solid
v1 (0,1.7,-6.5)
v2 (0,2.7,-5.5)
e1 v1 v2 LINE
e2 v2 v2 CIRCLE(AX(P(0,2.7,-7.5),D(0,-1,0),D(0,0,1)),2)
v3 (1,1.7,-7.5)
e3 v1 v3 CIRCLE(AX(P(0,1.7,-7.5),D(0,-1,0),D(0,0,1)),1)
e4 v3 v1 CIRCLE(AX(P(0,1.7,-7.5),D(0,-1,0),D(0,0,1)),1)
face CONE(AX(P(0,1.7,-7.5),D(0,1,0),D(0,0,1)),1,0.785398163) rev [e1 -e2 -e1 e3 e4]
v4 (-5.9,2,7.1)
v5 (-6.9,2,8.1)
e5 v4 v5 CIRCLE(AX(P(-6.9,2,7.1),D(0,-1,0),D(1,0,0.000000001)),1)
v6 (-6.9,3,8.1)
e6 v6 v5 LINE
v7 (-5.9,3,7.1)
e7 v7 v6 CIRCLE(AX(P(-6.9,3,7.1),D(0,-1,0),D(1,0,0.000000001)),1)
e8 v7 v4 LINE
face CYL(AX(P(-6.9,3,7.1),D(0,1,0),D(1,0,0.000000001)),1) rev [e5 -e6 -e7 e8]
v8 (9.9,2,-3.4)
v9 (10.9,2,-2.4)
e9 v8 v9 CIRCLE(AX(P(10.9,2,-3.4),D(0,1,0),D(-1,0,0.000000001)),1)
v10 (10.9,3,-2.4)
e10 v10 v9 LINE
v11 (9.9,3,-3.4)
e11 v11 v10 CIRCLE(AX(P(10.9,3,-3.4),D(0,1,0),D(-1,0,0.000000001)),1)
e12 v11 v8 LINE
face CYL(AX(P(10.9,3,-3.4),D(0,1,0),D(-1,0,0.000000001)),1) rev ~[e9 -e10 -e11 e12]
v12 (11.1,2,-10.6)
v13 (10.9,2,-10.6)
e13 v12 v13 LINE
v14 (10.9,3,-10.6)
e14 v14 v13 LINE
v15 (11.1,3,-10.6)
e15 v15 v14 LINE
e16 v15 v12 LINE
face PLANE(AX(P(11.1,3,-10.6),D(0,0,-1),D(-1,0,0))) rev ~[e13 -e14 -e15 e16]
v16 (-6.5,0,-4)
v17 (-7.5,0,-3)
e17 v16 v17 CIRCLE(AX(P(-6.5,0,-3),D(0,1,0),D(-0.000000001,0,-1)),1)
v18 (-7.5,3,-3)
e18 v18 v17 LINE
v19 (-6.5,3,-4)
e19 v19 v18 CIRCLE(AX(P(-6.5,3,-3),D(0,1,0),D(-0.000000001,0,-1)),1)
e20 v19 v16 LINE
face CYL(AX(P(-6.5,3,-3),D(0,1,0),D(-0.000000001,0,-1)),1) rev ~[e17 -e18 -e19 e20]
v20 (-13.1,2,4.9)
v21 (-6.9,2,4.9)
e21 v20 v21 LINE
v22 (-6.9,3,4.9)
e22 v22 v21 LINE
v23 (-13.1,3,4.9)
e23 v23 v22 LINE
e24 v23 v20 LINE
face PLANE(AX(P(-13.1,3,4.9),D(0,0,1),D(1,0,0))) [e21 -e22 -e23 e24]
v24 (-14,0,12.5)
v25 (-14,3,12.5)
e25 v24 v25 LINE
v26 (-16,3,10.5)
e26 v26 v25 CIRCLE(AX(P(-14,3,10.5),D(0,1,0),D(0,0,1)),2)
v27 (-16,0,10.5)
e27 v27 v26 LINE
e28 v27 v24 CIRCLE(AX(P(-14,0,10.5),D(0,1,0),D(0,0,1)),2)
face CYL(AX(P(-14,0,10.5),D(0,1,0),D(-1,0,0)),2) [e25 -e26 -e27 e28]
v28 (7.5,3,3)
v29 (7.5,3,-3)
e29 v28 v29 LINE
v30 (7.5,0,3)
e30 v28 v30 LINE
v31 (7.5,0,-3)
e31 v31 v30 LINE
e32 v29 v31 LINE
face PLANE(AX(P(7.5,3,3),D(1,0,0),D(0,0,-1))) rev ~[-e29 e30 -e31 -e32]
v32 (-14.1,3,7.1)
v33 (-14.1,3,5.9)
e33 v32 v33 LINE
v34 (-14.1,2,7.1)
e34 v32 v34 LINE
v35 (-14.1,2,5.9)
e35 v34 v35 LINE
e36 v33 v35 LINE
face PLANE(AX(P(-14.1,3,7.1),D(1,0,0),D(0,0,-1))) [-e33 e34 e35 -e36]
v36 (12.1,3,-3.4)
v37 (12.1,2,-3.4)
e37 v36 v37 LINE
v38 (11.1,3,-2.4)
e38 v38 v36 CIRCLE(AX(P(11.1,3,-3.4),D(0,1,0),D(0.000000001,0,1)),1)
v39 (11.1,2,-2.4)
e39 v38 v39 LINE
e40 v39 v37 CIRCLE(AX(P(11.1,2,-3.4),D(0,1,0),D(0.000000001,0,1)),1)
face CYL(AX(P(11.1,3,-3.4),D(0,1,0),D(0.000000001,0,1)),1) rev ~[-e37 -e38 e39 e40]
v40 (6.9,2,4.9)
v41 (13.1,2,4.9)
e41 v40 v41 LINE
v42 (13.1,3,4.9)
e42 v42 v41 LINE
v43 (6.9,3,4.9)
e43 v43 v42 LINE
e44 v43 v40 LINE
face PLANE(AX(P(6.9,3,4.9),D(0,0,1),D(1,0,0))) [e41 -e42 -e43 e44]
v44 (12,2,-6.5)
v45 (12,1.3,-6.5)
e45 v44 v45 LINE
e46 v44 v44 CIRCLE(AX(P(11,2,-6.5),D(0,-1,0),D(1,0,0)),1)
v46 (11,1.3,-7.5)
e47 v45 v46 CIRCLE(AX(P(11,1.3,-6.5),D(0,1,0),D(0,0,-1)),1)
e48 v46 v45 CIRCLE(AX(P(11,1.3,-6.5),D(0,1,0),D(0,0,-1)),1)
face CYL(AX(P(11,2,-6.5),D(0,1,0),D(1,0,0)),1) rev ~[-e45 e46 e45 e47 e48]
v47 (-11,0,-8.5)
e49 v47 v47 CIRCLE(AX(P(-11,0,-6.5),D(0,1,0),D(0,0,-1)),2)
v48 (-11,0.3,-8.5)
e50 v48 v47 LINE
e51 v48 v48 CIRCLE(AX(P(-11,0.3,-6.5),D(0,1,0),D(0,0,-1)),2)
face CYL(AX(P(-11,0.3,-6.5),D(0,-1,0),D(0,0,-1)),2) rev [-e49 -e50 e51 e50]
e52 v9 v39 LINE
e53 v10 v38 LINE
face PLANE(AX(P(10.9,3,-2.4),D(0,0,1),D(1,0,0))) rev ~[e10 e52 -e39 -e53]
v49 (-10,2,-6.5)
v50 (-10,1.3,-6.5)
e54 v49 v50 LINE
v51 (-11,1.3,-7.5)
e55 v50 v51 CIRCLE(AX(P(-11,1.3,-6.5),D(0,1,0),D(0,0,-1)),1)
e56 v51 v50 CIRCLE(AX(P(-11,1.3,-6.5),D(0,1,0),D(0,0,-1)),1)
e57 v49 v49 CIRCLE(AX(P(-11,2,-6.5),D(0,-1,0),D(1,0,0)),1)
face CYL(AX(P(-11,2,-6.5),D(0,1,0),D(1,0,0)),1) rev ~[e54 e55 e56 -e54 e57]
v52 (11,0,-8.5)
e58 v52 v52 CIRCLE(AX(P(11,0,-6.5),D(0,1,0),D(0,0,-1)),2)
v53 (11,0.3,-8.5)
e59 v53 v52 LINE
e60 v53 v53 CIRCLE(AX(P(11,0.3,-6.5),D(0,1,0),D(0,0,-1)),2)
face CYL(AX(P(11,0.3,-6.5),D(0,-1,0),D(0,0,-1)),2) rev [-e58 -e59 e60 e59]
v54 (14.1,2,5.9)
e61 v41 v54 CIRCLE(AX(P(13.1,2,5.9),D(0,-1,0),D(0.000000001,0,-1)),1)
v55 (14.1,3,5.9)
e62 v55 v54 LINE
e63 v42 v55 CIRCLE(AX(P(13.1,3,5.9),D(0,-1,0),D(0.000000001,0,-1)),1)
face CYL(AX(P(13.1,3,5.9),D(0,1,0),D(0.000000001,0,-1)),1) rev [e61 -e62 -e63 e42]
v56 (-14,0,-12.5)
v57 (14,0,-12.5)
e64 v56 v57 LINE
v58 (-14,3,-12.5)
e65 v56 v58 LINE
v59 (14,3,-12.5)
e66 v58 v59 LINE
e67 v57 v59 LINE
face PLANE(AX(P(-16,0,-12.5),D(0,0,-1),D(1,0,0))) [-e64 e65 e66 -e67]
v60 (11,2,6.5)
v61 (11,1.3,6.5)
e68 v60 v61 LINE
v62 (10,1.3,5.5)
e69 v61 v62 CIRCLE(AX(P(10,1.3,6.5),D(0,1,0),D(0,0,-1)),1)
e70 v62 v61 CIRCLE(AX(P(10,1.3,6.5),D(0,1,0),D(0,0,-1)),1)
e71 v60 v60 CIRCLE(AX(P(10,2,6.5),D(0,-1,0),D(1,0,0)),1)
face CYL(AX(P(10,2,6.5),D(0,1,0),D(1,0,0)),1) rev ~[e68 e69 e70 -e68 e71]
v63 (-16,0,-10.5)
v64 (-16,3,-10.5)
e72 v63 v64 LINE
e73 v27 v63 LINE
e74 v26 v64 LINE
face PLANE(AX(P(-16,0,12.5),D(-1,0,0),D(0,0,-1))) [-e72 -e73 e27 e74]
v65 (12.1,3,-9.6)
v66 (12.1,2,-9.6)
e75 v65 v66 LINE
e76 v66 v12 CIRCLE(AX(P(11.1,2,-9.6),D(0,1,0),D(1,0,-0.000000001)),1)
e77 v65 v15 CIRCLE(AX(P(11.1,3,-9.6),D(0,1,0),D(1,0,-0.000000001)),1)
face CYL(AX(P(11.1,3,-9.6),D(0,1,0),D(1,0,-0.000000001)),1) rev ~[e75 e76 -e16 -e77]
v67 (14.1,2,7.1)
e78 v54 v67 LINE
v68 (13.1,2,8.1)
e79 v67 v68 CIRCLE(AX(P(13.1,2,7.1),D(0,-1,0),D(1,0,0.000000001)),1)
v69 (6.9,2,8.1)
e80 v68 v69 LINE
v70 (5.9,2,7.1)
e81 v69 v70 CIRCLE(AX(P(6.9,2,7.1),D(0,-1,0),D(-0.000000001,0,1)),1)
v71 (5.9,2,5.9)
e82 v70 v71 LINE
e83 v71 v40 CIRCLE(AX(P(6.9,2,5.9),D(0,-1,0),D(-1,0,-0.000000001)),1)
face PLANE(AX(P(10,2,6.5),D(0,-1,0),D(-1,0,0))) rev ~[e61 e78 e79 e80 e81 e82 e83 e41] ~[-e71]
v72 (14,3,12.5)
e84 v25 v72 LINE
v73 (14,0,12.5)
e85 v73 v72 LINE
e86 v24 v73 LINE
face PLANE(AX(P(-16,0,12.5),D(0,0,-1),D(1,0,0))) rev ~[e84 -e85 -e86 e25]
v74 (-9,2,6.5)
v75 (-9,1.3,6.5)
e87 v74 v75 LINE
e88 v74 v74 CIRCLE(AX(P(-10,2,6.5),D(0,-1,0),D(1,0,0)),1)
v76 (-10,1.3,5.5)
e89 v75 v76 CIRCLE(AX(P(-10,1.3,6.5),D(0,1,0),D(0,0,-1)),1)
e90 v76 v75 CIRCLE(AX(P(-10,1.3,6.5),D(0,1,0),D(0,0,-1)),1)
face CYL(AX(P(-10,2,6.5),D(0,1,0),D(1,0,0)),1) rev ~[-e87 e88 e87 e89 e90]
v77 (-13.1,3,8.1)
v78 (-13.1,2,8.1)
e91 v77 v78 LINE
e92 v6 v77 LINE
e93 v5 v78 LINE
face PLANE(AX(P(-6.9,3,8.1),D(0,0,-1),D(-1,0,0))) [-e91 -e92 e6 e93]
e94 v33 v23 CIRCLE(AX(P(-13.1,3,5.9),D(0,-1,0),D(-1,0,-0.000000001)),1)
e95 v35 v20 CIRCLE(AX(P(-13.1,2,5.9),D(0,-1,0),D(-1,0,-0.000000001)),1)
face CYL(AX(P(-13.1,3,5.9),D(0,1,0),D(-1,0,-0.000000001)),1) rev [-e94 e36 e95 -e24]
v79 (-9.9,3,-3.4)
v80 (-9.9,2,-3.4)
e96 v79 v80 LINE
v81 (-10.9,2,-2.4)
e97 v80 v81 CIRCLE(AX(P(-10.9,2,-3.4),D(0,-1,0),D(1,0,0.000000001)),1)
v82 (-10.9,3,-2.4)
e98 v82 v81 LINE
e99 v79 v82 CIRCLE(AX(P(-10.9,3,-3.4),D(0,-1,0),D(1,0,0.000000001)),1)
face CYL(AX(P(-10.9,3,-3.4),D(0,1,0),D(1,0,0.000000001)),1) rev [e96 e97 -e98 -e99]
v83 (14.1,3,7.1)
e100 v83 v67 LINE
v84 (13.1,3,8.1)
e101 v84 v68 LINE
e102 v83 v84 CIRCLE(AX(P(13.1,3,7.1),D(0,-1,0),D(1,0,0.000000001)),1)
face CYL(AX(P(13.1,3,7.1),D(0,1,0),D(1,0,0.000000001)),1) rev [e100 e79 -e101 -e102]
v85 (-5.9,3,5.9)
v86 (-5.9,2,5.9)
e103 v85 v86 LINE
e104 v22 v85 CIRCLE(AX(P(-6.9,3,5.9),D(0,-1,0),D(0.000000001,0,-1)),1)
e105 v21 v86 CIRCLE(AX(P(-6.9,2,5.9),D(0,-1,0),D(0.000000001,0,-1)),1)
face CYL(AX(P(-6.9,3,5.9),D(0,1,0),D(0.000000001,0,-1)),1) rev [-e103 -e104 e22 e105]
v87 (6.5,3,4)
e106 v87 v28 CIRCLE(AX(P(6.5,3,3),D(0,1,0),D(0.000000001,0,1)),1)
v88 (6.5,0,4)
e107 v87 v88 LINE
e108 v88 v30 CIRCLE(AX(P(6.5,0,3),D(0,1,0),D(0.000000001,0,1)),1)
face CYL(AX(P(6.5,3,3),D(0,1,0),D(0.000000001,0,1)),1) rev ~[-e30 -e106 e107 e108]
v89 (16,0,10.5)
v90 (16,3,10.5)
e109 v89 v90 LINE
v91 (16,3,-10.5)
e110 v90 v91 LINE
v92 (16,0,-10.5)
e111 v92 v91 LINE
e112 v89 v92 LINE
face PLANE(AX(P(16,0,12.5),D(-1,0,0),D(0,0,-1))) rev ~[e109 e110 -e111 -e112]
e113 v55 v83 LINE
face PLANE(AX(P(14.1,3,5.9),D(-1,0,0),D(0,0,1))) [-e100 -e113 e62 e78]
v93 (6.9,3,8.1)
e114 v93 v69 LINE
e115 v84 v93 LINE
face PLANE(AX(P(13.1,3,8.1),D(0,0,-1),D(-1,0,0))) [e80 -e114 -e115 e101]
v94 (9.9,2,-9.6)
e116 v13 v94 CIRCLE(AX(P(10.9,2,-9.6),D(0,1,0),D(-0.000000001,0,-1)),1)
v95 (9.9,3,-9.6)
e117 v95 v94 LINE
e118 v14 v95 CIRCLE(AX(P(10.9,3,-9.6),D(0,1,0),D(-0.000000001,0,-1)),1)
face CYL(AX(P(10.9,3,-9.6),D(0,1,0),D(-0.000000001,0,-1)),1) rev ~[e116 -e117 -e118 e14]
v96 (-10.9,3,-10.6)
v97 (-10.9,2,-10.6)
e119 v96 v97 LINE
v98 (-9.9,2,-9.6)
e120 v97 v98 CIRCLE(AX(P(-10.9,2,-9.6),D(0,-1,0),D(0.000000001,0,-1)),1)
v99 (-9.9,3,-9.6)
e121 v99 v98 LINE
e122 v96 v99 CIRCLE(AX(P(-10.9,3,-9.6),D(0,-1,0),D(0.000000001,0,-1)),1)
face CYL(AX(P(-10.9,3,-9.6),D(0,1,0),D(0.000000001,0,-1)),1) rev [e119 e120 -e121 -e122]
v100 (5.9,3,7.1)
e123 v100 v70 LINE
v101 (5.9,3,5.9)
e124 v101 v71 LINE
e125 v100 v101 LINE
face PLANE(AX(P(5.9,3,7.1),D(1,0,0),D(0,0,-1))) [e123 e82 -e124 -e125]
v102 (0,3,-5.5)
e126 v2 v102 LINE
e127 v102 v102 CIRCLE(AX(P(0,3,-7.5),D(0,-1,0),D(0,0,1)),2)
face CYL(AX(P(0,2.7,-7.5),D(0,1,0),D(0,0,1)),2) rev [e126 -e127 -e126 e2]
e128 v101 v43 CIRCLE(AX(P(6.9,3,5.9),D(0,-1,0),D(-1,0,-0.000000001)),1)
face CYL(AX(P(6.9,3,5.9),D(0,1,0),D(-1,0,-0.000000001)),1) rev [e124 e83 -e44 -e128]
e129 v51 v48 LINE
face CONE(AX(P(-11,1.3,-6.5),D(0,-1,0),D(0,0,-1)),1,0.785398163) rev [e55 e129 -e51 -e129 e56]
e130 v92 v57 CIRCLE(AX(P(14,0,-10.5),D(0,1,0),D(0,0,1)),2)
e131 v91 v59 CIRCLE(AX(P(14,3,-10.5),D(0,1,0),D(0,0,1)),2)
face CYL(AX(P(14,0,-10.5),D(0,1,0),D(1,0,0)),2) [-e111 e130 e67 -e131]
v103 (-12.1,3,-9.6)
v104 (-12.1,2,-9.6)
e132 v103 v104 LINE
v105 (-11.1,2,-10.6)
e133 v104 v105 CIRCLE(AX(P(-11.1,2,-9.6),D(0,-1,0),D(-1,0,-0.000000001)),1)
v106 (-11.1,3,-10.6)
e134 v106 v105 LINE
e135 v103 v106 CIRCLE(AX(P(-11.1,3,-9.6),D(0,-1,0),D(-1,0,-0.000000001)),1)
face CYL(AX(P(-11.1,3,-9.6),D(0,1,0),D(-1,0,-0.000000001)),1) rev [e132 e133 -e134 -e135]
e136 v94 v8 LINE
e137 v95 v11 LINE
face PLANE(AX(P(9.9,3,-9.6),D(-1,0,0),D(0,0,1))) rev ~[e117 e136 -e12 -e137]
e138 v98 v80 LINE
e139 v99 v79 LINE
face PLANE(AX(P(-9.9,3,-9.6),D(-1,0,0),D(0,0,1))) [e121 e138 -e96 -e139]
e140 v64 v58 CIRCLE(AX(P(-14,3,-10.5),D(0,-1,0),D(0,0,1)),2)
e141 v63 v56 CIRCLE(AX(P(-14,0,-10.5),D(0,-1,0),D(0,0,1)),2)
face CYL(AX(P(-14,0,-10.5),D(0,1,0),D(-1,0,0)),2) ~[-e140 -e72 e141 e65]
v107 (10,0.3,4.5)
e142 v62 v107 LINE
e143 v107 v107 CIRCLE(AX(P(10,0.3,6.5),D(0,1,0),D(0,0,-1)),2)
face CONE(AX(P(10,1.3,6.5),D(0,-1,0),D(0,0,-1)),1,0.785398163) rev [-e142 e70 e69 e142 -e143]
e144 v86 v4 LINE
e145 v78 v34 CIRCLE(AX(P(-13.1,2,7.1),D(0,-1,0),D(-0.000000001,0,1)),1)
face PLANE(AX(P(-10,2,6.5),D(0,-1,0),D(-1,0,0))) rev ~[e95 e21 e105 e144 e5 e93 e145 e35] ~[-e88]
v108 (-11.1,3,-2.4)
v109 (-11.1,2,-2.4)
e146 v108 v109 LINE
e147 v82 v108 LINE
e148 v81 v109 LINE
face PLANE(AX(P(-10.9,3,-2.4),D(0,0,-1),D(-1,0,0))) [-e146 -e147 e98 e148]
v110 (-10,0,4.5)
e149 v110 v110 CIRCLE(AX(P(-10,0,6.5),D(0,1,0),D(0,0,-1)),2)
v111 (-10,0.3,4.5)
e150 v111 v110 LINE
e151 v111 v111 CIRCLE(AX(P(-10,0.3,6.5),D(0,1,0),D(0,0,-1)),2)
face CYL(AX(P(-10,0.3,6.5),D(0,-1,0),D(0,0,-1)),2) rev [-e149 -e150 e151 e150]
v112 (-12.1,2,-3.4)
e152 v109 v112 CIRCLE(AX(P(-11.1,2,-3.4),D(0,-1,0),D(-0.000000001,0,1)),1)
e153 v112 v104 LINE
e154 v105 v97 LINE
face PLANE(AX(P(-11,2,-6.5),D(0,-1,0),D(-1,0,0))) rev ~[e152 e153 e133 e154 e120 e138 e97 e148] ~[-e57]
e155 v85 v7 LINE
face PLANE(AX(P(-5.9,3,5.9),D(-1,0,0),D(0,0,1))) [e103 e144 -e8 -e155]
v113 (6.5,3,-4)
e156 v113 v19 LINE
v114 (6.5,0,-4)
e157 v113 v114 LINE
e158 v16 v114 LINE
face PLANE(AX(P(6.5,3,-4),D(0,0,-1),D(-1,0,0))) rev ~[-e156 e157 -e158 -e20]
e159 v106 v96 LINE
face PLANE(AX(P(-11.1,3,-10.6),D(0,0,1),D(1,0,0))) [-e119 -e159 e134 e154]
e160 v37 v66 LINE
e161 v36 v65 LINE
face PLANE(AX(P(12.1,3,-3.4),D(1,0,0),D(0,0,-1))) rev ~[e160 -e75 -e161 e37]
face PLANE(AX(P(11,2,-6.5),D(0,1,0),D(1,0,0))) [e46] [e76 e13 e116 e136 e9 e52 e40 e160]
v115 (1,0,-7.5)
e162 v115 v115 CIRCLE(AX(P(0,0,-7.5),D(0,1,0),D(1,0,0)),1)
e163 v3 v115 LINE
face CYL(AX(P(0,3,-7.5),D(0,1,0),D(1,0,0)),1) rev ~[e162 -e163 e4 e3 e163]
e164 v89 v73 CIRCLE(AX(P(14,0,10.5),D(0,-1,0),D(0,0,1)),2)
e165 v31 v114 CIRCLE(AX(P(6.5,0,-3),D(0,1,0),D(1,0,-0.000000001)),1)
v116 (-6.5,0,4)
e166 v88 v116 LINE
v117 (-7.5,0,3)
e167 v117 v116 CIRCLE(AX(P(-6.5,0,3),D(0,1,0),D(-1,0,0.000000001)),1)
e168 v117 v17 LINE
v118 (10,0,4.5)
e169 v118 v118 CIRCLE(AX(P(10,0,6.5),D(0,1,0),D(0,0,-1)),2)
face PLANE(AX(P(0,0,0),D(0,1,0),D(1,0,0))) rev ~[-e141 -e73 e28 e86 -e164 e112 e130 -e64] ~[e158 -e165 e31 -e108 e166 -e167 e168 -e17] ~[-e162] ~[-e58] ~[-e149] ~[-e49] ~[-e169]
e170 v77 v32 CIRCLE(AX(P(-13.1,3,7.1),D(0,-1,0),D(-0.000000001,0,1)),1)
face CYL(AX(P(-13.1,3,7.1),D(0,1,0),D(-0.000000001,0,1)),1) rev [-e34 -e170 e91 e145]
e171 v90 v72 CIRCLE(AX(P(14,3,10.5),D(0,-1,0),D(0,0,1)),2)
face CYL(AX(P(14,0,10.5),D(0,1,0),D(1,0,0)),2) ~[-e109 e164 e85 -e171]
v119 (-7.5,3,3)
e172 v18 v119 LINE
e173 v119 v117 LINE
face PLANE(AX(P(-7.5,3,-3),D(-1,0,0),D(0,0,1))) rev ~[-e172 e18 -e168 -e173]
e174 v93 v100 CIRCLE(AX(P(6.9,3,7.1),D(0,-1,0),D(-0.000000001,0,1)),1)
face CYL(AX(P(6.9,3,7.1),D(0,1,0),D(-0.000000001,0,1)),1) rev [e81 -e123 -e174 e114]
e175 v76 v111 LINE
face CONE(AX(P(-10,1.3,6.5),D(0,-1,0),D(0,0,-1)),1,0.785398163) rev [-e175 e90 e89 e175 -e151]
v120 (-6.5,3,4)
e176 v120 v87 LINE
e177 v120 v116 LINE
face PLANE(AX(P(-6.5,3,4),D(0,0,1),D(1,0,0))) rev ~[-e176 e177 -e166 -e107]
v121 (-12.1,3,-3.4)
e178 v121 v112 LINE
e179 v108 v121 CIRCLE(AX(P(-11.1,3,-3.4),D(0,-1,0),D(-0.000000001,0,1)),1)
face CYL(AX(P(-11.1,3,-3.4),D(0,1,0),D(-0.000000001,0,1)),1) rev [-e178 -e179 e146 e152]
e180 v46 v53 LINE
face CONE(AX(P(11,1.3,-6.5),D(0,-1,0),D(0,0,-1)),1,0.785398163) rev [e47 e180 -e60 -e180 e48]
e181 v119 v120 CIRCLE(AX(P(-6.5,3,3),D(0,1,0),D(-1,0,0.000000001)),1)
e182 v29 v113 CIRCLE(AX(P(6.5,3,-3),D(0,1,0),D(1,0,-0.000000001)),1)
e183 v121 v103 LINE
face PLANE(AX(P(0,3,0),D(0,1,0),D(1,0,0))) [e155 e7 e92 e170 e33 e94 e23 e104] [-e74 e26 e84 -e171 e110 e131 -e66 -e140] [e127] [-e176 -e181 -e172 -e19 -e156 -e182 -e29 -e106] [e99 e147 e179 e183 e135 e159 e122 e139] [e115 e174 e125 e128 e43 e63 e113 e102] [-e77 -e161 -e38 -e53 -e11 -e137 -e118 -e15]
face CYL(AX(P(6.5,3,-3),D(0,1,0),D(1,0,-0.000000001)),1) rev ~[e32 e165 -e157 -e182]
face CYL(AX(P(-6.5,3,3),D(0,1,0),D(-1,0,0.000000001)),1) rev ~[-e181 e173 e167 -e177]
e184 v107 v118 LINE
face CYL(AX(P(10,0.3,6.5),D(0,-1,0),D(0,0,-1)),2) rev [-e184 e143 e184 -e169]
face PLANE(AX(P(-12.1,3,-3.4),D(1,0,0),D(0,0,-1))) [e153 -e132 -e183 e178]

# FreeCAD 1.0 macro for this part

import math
import FreeCAD as App
import Part
import Sketcher

V = App.Vector
Q = App.Units.Quantity


def edges_at(feature, points):
    """Names of the edges that pass closest to the given points."""
    edges = feature.Shape.Edges
    near = lambda p: min(range(len(edges)), key=lambda i: edges[i].distToShape(Part.Vertex(*p))[0])
    return sorted({f"Edge{near(p) + 1}" for p in points})

doc = App.newDocument("Part")
body = doc.addObject("PartDesign::Body", "Body")

# Sketch on XZ plane
sketch1 = doc.addObject("Sketcher::SketchObject", "Sketch")
body.addObject(sketch1)
sketch1.AttachmentSupport = (doc.XZ_Plane, [""])
sketch1.MapMode = "FlatFace"
sketch1.addGeometry([
    Part.LineSegment(V(-16, -12, 0), V(-16, 12, 0)),
    Part.LineSegment(V(-16, 12, 0), V(16, 12, 0)),
    Part.LineSegment(V(16, 12, 0), V(16, -12, 0)),
    Part.LineSegment(V(16, -12, 0), V(-16, -12, 0)),
], False)
sketch1.addConstraint([
    Sketcher.Constraint("Coincident", 0, 2, 1, 1),
    Sketcher.Constraint("Coincident", 1, 2, 2, 1),
    Sketcher.Constraint("Coincident", 2, 2, 3, 1),
    Sketcher.Constraint("Coincident", 3, 2, 0, 1),
    Sketcher.Constraint("Vertical", 0),
    Sketcher.Constraint("Horizontal", 1),
    Sketcher.Constraint("Vertical", 2),
    Sketcher.Constraint("Horizontal", 3),
    Sketcher.Constraint("Symmetric", 0, 2, 2, 2, -1, 1),
    Sketcher.Constraint("DistanceX", 1, 1, 1, 2, Q("32 mm")),
    Sketcher.Constraint("DistanceY", 0, 1, 0, 2, Q("25 mm")),
])
pad1 = doc.addObject("PartDesign::Pad", "Pad")
body.addObject(pad1)
pad1.Profile = sketch1
pad1.Length = 3
pad1.Reversed = True

# Sketch on XZ plane
sketch2 = doc.addObject("Sketcher::SketchObject", "Sketch001")
body.addObject(sketch2)
sketch2.AttachmentSupport = (doc.XZ_Plane, [""])
sketch2.MapMode = "FlatFace"
sketch2.AttachmentOffset = App.Placement(V(0, 0, -3), App.Rotation())
sketch2.addGeometry([
    Part.LineSegment(V(14.1, 7.1, 0), V(14.1, 5.9, 0)),  # 0
    Part.ArcOfCircle(Part.Circle(V(13.1, 5.9, 0), V(0, 0, 1), 1), math.radians(-90), math.radians(0)),  # 1
    Part.LineSegment(V(13.1, 4.9, 0), V(6.9, 4.9, 0)),  # 2
    Part.ArcOfCircle(Part.Circle(V(6.9, 5.9, 0), V(0, 0, 1), 1), math.radians(-180), math.radians(-90)),  # 3
    Part.LineSegment(V(5.9, 5.9, 0), V(5.9, 7.1, 0)),  # 4
    Part.ArcOfCircle(Part.Circle(V(6.9, 7.1, 0), V(0, 0, 1), 1), math.radians(90), math.radians(180)),  # 5
    Part.LineSegment(V(6.9, 8.1, 0), V(13.1, 8.1, 0)),  # 6
    Part.ArcOfCircle(Part.Circle(V(13.1, 7.1, 0), V(0, 0, 1), 1), math.radians(0), math.radians(90)),  # 7
    Part.LineSegment(V(-6.9, 4.9, 0), V(-13.1, 4.9, 0)),  # 8
    Part.ArcOfCircle(Part.Circle(V(-13.1, 5.9, 0), V(0, 0, 1), 1), math.radians(-180), math.radians(-90)),  # 9
    Part.LineSegment(V(-14.1, 5.9, 0), V(-14.1, 7.1, 0)),  # 10
    Part.ArcOfCircle(Part.Circle(V(-13.1, 7.1, 0), V(0, 0, 1), 1), math.radians(90), math.radians(180)),  # 11
    Part.LineSegment(V(-13.1, 8.1, 0), V(-6.9, 8.1, 0)),  # 12
    Part.ArcOfCircle(Part.Circle(V(-6.9, 7.1, 0), V(0, 0, 1), 1), math.radians(0), math.radians(90)),  # 13
    Part.LineSegment(V(-5.9, 7.1, 0), V(-5.9, 5.9, 0)),  # 14
    Part.ArcOfCircle(Part.Circle(V(-6.9, 5.9, 0), V(0, 0, 1), 1), math.radians(-90), math.radians(0)),  # 15
    Part.LineSegment(V(11.1, -10.6, 0), V(10.9, -10.6, 0)),  # 16
    Part.ArcOfCircle(Part.Circle(V(10.9, -9.6, 0), V(0, 0, 1), 1), math.radians(-180), math.radians(-90)),  # 17
    Part.LineSegment(V(9.9, -9.6, 0), V(9.9, -3.4, 0)),  # 18
    Part.ArcOfCircle(Part.Circle(V(10.9, -3.4, 0), V(0, 0, 1), 1), math.radians(90), math.radians(180)),  # 19
    Part.LineSegment(V(10.9, -2.4, 0), V(11.1, -2.4, 0)),  # 20
    Part.ArcOfCircle(Part.Circle(V(11.1, -3.4, 0), V(0, 0, 1), 1), math.radians(0), math.radians(90)),  # 21
    Part.LineSegment(V(12.1, -3.4, 0), V(12.1, -9.6, 0)),  # 22
    Part.ArcOfCircle(Part.Circle(V(11.1, -9.6, 0), V(0, 0, 1), 1), math.radians(-90), math.radians(0)),  # 23
    Part.LineSegment(V(-10.9, -10.6, 0), V(-11.1, -10.6, 0)),  # 24
    Part.ArcOfCircle(Part.Circle(V(-11.1, -9.6, 0), V(0, 0, 1), 1), math.radians(-180), math.radians(-90)),  # 25
    Part.LineSegment(V(-12.1, -9.6, 0), V(-12.1, -3.4, 0)),  # 26
    Part.ArcOfCircle(Part.Circle(V(-11.1, -3.4, 0), V(0, 0, 1), 1), math.radians(90), math.radians(180)),  # 27
    Part.LineSegment(V(-11.1, -2.4, 0), V(-10.9, -2.4, 0)),  # 28
    Part.ArcOfCircle(Part.Circle(V(-10.9, -3.4, 0), V(0, 0, 1), 1), math.radians(0), math.radians(90)),  # 29
    Part.LineSegment(V(-9.9, -3.4, 0), V(-9.9, -9.6, 0)),  # 30
    Part.ArcOfCircle(Part.Circle(V(-10.9, -9.6, 0), V(0, 0, 1), 1), math.radians(-90), math.radians(0)),  # 31
], False)
sketch2.addConstraint([
    Sketcher.Constraint("Tangent", 0, 2, 1, 2),
    Sketcher.Constraint("Tangent", 1, 1, 2, 1),
    Sketcher.Constraint("Tangent", 2, 2, 3, 2),
    Sketcher.Constraint("Tangent", 3, 1, 4, 1),
    Sketcher.Constraint("Tangent", 4, 2, 5, 2),
    Sketcher.Constraint("Tangent", 5, 1, 6, 1),
    Sketcher.Constraint("Tangent", 6, 2, 7, 2),
    Sketcher.Constraint("Tangent", 7, 1, 0, 1),
    Sketcher.Constraint("Tangent", 8, 2, 9, 2),
    Sketcher.Constraint("Tangent", 9, 1, 10, 1),
    Sketcher.Constraint("Tangent", 10, 2, 11, 2),
    Sketcher.Constraint("Tangent", 11, 1, 12, 1),
    Sketcher.Constraint("Tangent", 12, 2, 13, 2),
    Sketcher.Constraint("Tangent", 13, 1, 14, 1),
    Sketcher.Constraint("Tangent", 14, 2, 15, 2),
    Sketcher.Constraint("Tangent", 15, 1, 8, 1),
    Sketcher.Constraint("Tangent", 16, 2, 17, 2),
    Sketcher.Constraint("Tangent", 17, 1, 18, 1),
    Sketcher.Constraint("Tangent", 18, 2, 19, 2),
    Sketcher.Constraint("Tangent", 19, 1, 20, 1),
    Sketcher.Constraint("Tangent", 20, 2, 21, 2),
    Sketcher.Constraint("Tangent", 21, 1, 22, 1),
    Sketcher.Constraint("Tangent", 22, 2, 23, 2),
    Sketcher.Constraint("Tangent", 23, 1, 16, 1),
    Sketcher.Constraint("Tangent", 24, 2, 25, 2),
    Sketcher.Constraint("Tangent", 25, 1, 26, 1),
    Sketcher.Constraint("Tangent", 26, 2, 27, 2),
    Sketcher.Constraint("Tangent", 27, 1, 28, 1),
    Sketcher.Constraint("Tangent", 28, 2, 29, 2),
    Sketcher.Constraint("Tangent", 29, 1, 30, 1),
    Sketcher.Constraint("Tangent", 30, 2, 31, 2),
    Sketcher.Constraint("Tangent", 31, 1, 24, 1),
    Sketcher.Constraint("Vertical", 0),
    Sketcher.Constraint("Horizontal", 2),
    Sketcher.Constraint("Vertical", 4),
    Sketcher.Constraint("Horizontal", 6),
    Sketcher.Constraint("Horizontal", 8),
    Sketcher.Constraint("Vertical", 10),
    Sketcher.Constraint("Horizontal", 12),
    Sketcher.Constraint("Vertical", 14),
    Sketcher.Constraint("Horizontal", 16),
    Sketcher.Constraint("Vertical", 18),
    Sketcher.Constraint("Horizontal", 20),
    Sketcher.Constraint("Vertical", 22),
    Sketcher.Constraint("Horizontal", 24),
    Sketcher.Constraint("Vertical", 26),
    Sketcher.Constraint("Horizontal", 28),
    Sketcher.Constraint("Vertical", 30),
    Sketcher.Constraint("Equal", 1, 3),
    Sketcher.Constraint("Equal", 3, 5),
    Sketcher.Constraint("Equal", 5, 7),
    Sketcher.Constraint("Equal", 7, 9),
    Sketcher.Constraint("Equal", 9, 11),
    Sketcher.Constraint("Equal", 11, 13),
    Sketcher.Constraint("Equal", 13, 15),
    Sketcher.Constraint("Equal", 15, 17),
    Sketcher.Constraint("Equal", 17, 19),
    Sketcher.Constraint("Equal", 19, 21),
    Sketcher.Constraint("Equal", 21, 23),
    Sketcher.Constraint("Equal", 23, 25),
    Sketcher.Constraint("Equal", 25, 27),
    Sketcher.Constraint("Equal", 27, 29),
    Sketcher.Constraint("Equal", 29, 31),
    Sketcher.Constraint("Symmetric", 1, 3, 9, 3, -2),
    Sketcher.Constraint("Symmetric", 5, 3, 13, 3, -2),
    Sketcher.Constraint("Symmetric", 23, 3, 25, 3, -2),
    Sketcher.Constraint("Symmetric", 19, 3, 29, 3, -2),
    Sketcher.Constraint("Equal", 12, 18),
    Sketcher.Constraint("Radius", 1, Q("1 mm")),
    Sketcher.Constraint("DistanceX", 2, 2, 2, 1, Q("6.2 mm")),
    Sketcher.Constraint("DistanceX", 16, 2, 16, 1, Q("0.2 mm")),
    Sketcher.Constraint("DistanceY", 0, 2, 0, 1, Q("1.2 mm")),
    Sketcher.Constraint("DistanceX", 9, 3, 3, 3, Q("20 mm")),
    Sketcher.Constraint("DistanceX", 3, 3, 17, 3, Q("4 mm")),
    Sketcher.Constraint("DistanceY", -1, 1, 1, 3, Q("5.9 mm")),
    Sketcher.Constraint("DistanceY", 17, 3, -1, 1, Q("9.6 mm")),
])
pocket1 = doc.addObject("PartDesign::Pocket", "Pocket")
body.addObject(pocket1)
pocket1.Profile = sketch2
pocket1.Length = 1
pocket1.Reversed = True

# Sketch on XZ plane
sketch3 = doc.addObject("Sketcher::SketchObject", "Sketch002")
body.addObject(sketch3)
sketch3.AttachmentSupport = (doc.XZ_Plane, [""])
sketch3.MapMode = "FlatFace"
sketch3.AttachmentOffset = App.Placement(V(0, 0, -2), App.Rotation())
sketch3.addGeometry(Part.Circle(V(-10, 6.5, 0), V(0, 0, 1), 1), False)
sketch3.addConstraint([
    Sketcher.Constraint("Diameter", 0, Q("2 mm")),
    Sketcher.Constraint("DistanceX", 0, 3, -1, 1, Q("10 mm")),
    Sketcher.Constraint("DistanceY", -1, 1, 0, 3, Q("6.5 mm")),
])
pocket2 = doc.addObject("PartDesign::Pocket", "Pocket001")
body.addObject(pocket2)
pocket2.Profile = sketch3
pocket2.Type = "UpToFirst"
pocket2.Reversed = True

# Sketch on XZ plane
sketch4 = doc.addObject("Sketcher::SketchObject", "Sketch003")
body.addObject(sketch4)
sketch4.AttachmentSupport = (doc.XZ_Plane, [""])
sketch4.MapMode = "FlatFace"
sketch4.AttachmentOffset = App.Placement(V(0, 0, -2), App.Rotation())
sketch4.addGeometry(Part.Circle(V(10, 6.5, 0), V(0, 0, 1), 1), False)
sketch4.addConstraint([
    Sketcher.Constraint("Diameter", 0, Q("2 mm")),
    Sketcher.Constraint("DistanceX", -1, 1, 0, 3, Q("10 mm")),
    Sketcher.Constraint("DistanceY", -1, 1, 0, 3, Q("6.5 mm")),
])
pocket3 = doc.addObject("PartDesign::Pocket", "Pocket002")
body.addObject(pocket3)
pocket3.Profile = sketch4
pocket3.Type = "UpToFirst"
pocket3.Reversed = True

# Sketch on XZ plane
sketch5 = doc.addObject("Sketcher::SketchObject", "Sketch004")
body.addObject(sketch5)
sketch5.AttachmentSupport = (doc.XZ_Plane, [""])
sketch5.MapMode = "FlatFace"
sketch5.AttachmentOffset = App.Placement(V(0, 0, -2), App.Rotation())
sketch5.addGeometry(Part.Circle(V(-11, -6.5, 0), V(0, 0, 1), 1), False)
sketch5.addConstraint([
    Sketcher.Constraint("Diameter", 0, Q("2 mm")),
    Sketcher.Constraint("DistanceX", 0, 3, -1, 1, Q("11 mm")),
    Sketcher.Constraint("DistanceY", 0, 3, -1, 1, Q("6.5 mm")),
])
pocket4 = doc.addObject("PartDesign::Pocket", "Pocket003")
body.addObject(pocket4)
pocket4.Profile = sketch5
pocket4.Type = "UpToFirst"
pocket4.Reversed = True

# Sketch on XZ plane
sketch6 = doc.addObject("Sketcher::SketchObject", "Sketch005")
body.addObject(sketch6)
sketch6.AttachmentSupport = (doc.XZ_Plane, [""])
sketch6.MapMode = "FlatFace"
sketch6.AttachmentOffset = App.Placement(V(0, 0, -2), App.Rotation())
sketch6.addGeometry(Part.Circle(V(11, -6.5, 0), V(0, 0, 1), 1), False)
sketch6.addConstraint([
    Sketcher.Constraint("Diameter", 0, Q("2 mm")),
    Sketcher.Constraint("DistanceX", -1, 1, 0, 3, Q("11 mm")),
    Sketcher.Constraint("DistanceY", 0, 3, -1, 1, Q("6.5 mm")),
])
pocket5 = doc.addObject("PartDesign::Pocket", "Pocket004")
body.addObject(pocket5)
pocket5.Profile = sketch6
pocket5.Type = "UpToFirst"
pocket5.Reversed = True

# Sketch on XZ plane
sketch7 = doc.addObject("Sketcher::SketchObject", "Sketch006")
body.addObject(sketch7)
sketch7.AttachmentSupport = (doc.XZ_Plane, [""])
sketch7.MapMode = "FlatFace"
sketch7.AttachmentOffset = App.Placement(V(0, 0, -3), App.Rotation())
sketch7.addGeometry(Part.Circle(V(0, -7.5, 0), V(0, 0, 1), 1), False)
sketch7.addConstraint([
    Sketcher.Constraint("PointOnObject", 0, 3, -2),
    Sketcher.Constraint("Diameter", 0, Q("2 mm")),
    Sketcher.Constraint("DistanceY", 0, 3, -1, 1, Q("7.5 mm")),
])
pocket6 = doc.addObject("PartDesign::Pocket", "Pocket005")
body.addObject(pocket6)
pocket6.Profile = sketch7
pocket6.Type = "UpToFirst"
pocket6.Reversed = True

# Sketch on YZ plane
sketch8 = doc.addObject("Sketcher::SketchObject", "Sketch007")
body.addObject(sketch8)
sketch8.AttachmentSupport = (doc.YZ_Plane, [""])
sketch8.MapMode = "FlatFace"
sketch8.addGeometry([
    Part.LineSegment(V(0, -7.5, 0), V(3, -7.5, 0)),  # 0
    Part.LineSegment(V(3, -7.5, 0), V(3, -5.5, 0)),  # 1
    Part.LineSegment(V(3, -5.5, 0), V(2.7, -5.5, 0)),  # 2
    Part.LineSegment(V(2.7, -5.5, 0), V(1.7, -6.5, 0)),  # 3
    Part.LineSegment(V(1.7, -6.5, 0), V(0, -6.5, 0)),  # 4
    Part.LineSegment(V(0, -6.5, 0), V(0, -7.5, 0)),  # 5
], False)
sketch8.addGeometry(Part.LineSegment(V(3, -7.5, 0), V(0, -7.5, 0)), True)  # axis
sketch8.addConstraint([
    Sketcher.Constraint("Coincident", 0, 2, 1, 1),
    Sketcher.Constraint("Coincident", 1, 2, 2, 1),
    Sketcher.Constraint("Coincident", 2, 2, 3, 1),
    Sketcher.Constraint("Coincident", 3, 2, 4, 1),
    Sketcher.Constraint("Coincident", 4, 2, 5, 1),
    Sketcher.Constraint("Coincident", 5, 2, 0, 1),
    Sketcher.Constraint("Horizontal", 0),
    Sketcher.Constraint("Vertical", 1),
    Sketcher.Constraint("Horizontal", 2),
    Sketcher.Constraint("Horizontal", 4),
    Sketcher.Constraint("Vertical", 5),
    Sketcher.Constraint("Horizontal", 6),
    Sketcher.Constraint("Coincident", 6, 1, 0, 2),
    Sketcher.Constraint("PointOnObject", 4, 2, -2),
    Sketcher.Constraint("PointOnObject", 6, 2, -2),
    Sketcher.Constraint("DistanceX", 0, 1, 0, 2, Q("3 mm")),
    Sketcher.Constraint("DistanceY", 1, 1, 1, 2, Q("2 mm")),
    Sketcher.Constraint("DistanceY", 5, 2, 5, 1, Q("1 mm")),
    Sketcher.Constraint("Angle", 3, Q("-135 deg")),
    Sketcher.Constraint("DistanceX", 2, 2, 2, 1, Q("0.3 mm")),
    Sketcher.Constraint("DistanceY", 0, 2, -1, 1, Q("7.5 mm")),
])
groove = doc.addObject("PartDesign::Groove", "Groove")
body.addObject(groove)
groove.Profile = sketch8
groove.ReferenceAxis = (sketch8, ["Axis0"])
groove.Angle = 360
doc.recompute()

fillet = doc.addObject("PartDesign::Fillet", "Fillet")
body.addObject(fillet)
fillet.Base = (groove, edges_at(groove, [
    (-16, 1.5, -12.5),
    (16, 1.5, -12.5),
    (16, 1.5, 12.5),
    (-16, 1.5, 12.5),
]))
fillet.Radius = 2

# Sketch on XZ plane
sketch9 = doc.addObject("Sketcher::SketchObject", "Sketch008")
body.addObject(sketch9)
sketch9.AttachmentSupport = (doc.XZ_Plane, [""])
sketch9.MapMode = "FlatFace"
sketch9.AttachmentOffset = App.Placement(V(0, 0, -3), App.Rotation())
sketch9.addGeometry([
    Part.LineSegment(V(6.5, -4, 0), V(-6.5, -4, 0)),  # 0
    Part.ArcOfCircle(Part.Circle(V(-6.5, -3, 0), V(0, 0, 1), 1), math.radians(-180), math.radians(-90)),  # 1
    Part.LineSegment(V(-7.5, -3, 0), V(-7.5, 3, 0)),  # 2
    Part.ArcOfCircle(Part.Circle(V(-6.5, 3, 0), V(0, 0, 1), 1), math.radians(90), math.radians(180)),  # 3
    Part.LineSegment(V(-6.5, 4, 0), V(6.5, 4, 0)),  # 4
    Part.ArcOfCircle(Part.Circle(V(6.5, 3, 0), V(0, 0, 1), 1), math.radians(0), math.radians(90)),  # 5
    Part.LineSegment(V(7.5, 3, 0), V(7.5, -3, 0)),  # 6
    Part.ArcOfCircle(Part.Circle(V(6.5, -3, 0), V(0, 0, 1), 1), math.radians(-90), math.radians(0)),  # 7
], False)
sketch9.addConstraint([
    Sketcher.Constraint("Tangent", 0, 2, 1, 2),
    Sketcher.Constraint("Tangent", 1, 1, 2, 1),
    Sketcher.Constraint("Tangent", 2, 2, 3, 2),
    Sketcher.Constraint("Tangent", 3, 1, 4, 1),
    Sketcher.Constraint("Tangent", 4, 2, 5, 2),
    Sketcher.Constraint("Tangent", 5, 1, 6, 1),
    Sketcher.Constraint("Tangent", 6, 2, 7, 2),
    Sketcher.Constraint("Tangent", 7, 1, 0, 1),
    Sketcher.Constraint("Horizontal", 0),
    Sketcher.Constraint("Vertical", 2),
    Sketcher.Constraint("Horizontal", 4),
    Sketcher.Constraint("Vertical", 6),
    Sketcher.Constraint("Equal", 1, 3),
    Sketcher.Constraint("Equal", 3, 5),
    Sketcher.Constraint("Equal", 5, 7),
    Sketcher.Constraint("Symmetric", 1, 3, 5, 3, -1, 1),
    Sketcher.Constraint("Radius", 1, Q("1 mm")),
    Sketcher.Constraint("DistanceX", 0, 2, 0, 1, Q("13 mm")),
    Sketcher.Constraint("DistanceY", 2, 1, 2, 2, Q("6 mm")),
])
pocket7 = doc.addObject("PartDesign::Pocket", "Pocket006")
body.addObject(pocket7)
pocket7.Profile = sketch9
pocket7.Type = "UpToFirst"
pocket7.Reversed = True

# Sketch on YZ plane
sketch10 = doc.addObject("Sketcher::SketchObject", "Sketch009")
body.addObject(sketch10)
sketch10.AttachmentSupport = (doc.YZ_Plane, [""])
sketch10.MapMode = "FlatFace"
sketch10.AttachmentOffset = App.Placement(V(0, 0, 11), App.Rotation())
sketch10.addGeometry([
    Part.LineSegment(V(3, -6.5, 0), V(0, -6.5, 0)),  # 0
    Part.LineSegment(V(0, -6.5, 0), V(0, -8.5, 0)),  # 1
    Part.LineSegment(V(0, -8.5, 0), V(0.3, -8.5, 0)),  # 2
    Part.LineSegment(V(0.3, -8.5, 0), V(1.3, -7.5, 0)),  # 3
    Part.LineSegment(V(1.3, -7.5, 0), V(3, -7.5, 0)),  # 4
    Part.LineSegment(V(3, -7.5, 0), V(3, -6.5, 0)),  # 5
], False)
sketch10.addGeometry(Part.LineSegment(V(0, -6.5, 0), V(3, -6.5, 0)), True)  # axis
sketch10.addConstraint([
    Sketcher.Constraint("Coincident", 0, 2, 1, 1),
    Sketcher.Constraint("Coincident", 1, 2, 2, 1),
    Sketcher.Constraint("Coincident", 2, 2, 3, 1),
    Sketcher.Constraint("Coincident", 3, 2, 4, 1),
    Sketcher.Constraint("Coincident", 4, 2, 5, 1),
    Sketcher.Constraint("Coincident", 5, 2, 0, 1),
    Sketcher.Constraint("Horizontal", 0),
    Sketcher.Constraint("Vertical", 1),
    Sketcher.Constraint("Horizontal", 2),
    Sketcher.Constraint("Horizontal", 4),
    Sketcher.Constraint("Vertical", 5),
    Sketcher.Constraint("Horizontal", 6),
    Sketcher.Constraint("Coincident", 6, 1, 0, 2),
    Sketcher.Constraint("PointOnObject", 0, 2, -2),
    Sketcher.Constraint("Vertical", 4, 2, 6, 2),
    Sketcher.Constraint("DistanceX", 0, 2, 0, 1, Q("3 mm")),
    Sketcher.Constraint("DistanceY", 1, 2, 1, 1, Q("2 mm")),
    Sketcher.Constraint("DistanceY", 5, 1, 5, 2, Q("1 mm")),
    Sketcher.Constraint("Angle", 3, Q("45 deg")),
    Sketcher.Constraint("DistanceX", 2, 1, 2, 2, Q("0.3 mm")),
    Sketcher.Constraint("DistanceY", 0, 2, -1, 1, Q("6.5 mm")),
])
groove2 = doc.addObject("PartDesign::Groove", "Groove001")
body.addObject(groove2)
groove2.Profile = sketch10
groove2.ReferenceAxis = (sketch10, ["Axis0"])
groove2.Angle = 360
doc.recompute()

linearpattern = doc.addObject("PartDesign::LinearPattern", "LinearPattern")
body.addObject(linearpattern)
linearpattern.Originals = [groove2]
linearpattern.Direction = (doc.X_Axis, [""])
linearpattern.Mode = "offset"
linearpattern.Offset = 22
linearpattern.Occurrences = 2
linearpattern.Reversed = True
body.Tip = linearpattern
doc.recompute()

datumline = doc.addObject("PartDesign::Line", "DatumLine")
body.addObject(datumline)
datumline.Placement = App.Placement(V(0, 0, 0), App.Rotation(V(0, 0, 1), V(-0.076696499, 0, 0.997054485)))
linearpattern2 = doc.addObject("PartDesign::LinearPattern", "LinearPattern001")
body.addObject(linearpattern2)
linearpattern2.Originals = [groove2]
linearpattern2.Direction = (datumline, [""])
linearpattern2.Mode = "offset"
linearpattern2.Offset = 13.038405
linearpattern2.Occurrences = 2
body.Tip = linearpattern2
doc.recompute()

datumline2 = doc.addObject("PartDesign::Line", "DatumLine001")
body.addObject(datumline2)
datumline2.Placement = App.Placement(V(0, 0, 0), App.Rotation(V(0, 0, 1), V(-0.850265147, 0, 0.526354615)))
linearpattern3 = doc.addObject("PartDesign::LinearPattern", "LinearPattern002")
body.addObject(linearpattern3)
linearpattern3.Originals = [groove2]
linearpattern3.Direction = (datumline2, [""])
linearpattern3.Mode = "offset"
linearpattern3.Offset = 24.698178
linearpattern3.Occurrences = 2
body.Tip = linearpattern3

doc.recompute()
